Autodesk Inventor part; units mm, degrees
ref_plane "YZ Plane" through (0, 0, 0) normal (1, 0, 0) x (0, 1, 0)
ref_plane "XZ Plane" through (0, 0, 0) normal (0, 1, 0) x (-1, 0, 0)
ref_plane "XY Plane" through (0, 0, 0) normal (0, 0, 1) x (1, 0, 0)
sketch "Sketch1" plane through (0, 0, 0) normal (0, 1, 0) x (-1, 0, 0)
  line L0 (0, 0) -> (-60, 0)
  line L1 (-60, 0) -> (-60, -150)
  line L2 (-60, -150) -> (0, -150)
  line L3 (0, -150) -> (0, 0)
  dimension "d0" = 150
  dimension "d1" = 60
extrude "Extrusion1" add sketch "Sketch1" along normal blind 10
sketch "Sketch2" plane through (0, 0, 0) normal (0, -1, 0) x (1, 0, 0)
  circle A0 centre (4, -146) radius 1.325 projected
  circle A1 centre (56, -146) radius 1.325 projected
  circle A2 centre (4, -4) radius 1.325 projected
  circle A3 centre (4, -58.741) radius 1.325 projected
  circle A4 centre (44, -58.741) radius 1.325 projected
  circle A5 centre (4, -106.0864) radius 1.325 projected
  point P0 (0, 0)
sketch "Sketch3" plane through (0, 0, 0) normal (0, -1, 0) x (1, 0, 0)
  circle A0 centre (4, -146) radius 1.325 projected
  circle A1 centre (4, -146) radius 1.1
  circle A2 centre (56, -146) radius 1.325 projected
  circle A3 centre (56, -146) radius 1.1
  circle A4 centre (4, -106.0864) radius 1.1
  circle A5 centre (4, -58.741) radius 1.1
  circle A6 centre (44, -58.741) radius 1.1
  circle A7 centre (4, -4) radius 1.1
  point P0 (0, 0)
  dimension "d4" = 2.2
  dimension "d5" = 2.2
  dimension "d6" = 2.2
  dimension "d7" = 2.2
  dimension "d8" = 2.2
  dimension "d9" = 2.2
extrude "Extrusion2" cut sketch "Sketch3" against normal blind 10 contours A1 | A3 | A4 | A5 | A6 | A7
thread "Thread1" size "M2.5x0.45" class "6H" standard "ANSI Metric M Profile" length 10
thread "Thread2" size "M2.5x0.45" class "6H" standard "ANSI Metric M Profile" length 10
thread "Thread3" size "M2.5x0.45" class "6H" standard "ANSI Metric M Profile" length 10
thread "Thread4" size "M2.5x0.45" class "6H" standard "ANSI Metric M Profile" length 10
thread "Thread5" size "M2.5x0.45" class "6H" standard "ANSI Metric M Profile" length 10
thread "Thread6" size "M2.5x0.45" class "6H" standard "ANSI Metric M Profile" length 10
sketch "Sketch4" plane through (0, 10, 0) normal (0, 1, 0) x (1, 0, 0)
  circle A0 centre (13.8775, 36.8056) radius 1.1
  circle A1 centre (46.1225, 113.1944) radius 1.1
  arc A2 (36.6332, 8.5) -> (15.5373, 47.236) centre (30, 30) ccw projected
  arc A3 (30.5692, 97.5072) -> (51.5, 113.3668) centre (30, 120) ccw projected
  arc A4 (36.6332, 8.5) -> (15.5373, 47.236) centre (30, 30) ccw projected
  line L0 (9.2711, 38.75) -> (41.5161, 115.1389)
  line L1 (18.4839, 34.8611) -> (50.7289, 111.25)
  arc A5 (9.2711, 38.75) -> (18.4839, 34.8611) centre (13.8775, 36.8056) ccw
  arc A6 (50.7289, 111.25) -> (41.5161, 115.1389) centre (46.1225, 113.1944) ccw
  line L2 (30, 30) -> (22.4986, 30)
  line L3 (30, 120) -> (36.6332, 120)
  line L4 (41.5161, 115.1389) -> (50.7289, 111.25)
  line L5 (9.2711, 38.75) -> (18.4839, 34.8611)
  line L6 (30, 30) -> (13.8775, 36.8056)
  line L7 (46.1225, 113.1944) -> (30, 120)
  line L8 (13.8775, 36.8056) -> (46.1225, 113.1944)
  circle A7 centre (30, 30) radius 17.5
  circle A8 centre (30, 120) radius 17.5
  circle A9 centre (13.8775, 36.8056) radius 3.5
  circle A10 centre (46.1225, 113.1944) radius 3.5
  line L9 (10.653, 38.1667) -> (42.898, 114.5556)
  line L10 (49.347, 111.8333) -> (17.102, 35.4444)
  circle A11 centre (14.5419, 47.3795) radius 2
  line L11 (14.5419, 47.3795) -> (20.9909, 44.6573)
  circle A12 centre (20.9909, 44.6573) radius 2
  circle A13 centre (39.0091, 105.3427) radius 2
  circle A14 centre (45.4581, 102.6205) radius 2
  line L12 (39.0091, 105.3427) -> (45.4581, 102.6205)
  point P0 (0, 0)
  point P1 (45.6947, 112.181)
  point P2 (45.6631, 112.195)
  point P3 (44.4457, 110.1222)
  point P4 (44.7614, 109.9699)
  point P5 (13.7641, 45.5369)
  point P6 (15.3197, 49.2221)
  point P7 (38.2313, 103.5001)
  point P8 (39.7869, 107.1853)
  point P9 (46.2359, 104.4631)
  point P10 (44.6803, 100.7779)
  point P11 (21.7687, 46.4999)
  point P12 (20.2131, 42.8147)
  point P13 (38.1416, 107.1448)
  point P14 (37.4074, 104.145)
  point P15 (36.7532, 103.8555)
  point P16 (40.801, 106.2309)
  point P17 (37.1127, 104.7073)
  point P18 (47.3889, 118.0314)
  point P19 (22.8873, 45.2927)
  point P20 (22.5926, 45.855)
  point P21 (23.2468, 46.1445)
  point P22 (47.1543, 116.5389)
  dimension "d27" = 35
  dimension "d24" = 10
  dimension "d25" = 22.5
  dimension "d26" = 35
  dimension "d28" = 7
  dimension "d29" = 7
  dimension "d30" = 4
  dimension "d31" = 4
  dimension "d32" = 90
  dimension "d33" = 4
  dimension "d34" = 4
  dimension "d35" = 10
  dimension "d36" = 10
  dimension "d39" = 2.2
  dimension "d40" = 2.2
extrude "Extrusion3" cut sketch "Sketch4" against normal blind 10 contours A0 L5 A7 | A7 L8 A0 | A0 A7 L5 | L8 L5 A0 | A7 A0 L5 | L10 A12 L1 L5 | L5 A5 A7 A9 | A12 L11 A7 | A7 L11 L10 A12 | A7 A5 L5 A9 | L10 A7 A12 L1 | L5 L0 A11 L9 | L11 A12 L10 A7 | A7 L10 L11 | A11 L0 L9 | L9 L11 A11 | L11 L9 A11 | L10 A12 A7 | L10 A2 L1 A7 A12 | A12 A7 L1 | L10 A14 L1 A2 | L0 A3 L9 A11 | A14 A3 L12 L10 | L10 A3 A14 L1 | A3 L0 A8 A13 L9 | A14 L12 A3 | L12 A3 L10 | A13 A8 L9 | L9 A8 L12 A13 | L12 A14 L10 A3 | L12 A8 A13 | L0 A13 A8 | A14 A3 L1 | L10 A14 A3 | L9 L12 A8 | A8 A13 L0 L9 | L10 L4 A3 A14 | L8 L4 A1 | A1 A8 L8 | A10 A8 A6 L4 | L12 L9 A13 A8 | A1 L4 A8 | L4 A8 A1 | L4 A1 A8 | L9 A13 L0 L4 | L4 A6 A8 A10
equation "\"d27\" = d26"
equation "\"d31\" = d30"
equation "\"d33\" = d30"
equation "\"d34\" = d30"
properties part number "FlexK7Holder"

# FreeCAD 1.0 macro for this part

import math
import FreeCAD as App
import Part
import Sketcher
from FreeCAD import Vector


def add_polygon(sketch, points):
    """Adds a closed chain of lines whose ends are joined by coincident constraints."""
    first, n = sketch.GeometryCount, len(points)
    for a, b in zip(points, points[1:] + points[:1]):
        sketch.addGeometry(Part.LineSegment(App.Vector(*a, 0), App.Vector(*b, 0)), False)
    for i in range(n):
        sketch.addConstraint(Sketcher.Constraint("Coincident", first + i, 2, first + (i + 1) % n, 1))

doc = App.newDocument("Part")
body = doc.addObject("PartDesign::Body", "Body")
body.AllowCompound = True

# Sketch on XZ plane
sketch1 = body.newObject("Sketcher::SketchObject", "Sketch")
sketch1.AttachmentSupport = (doc.getObject("XZ_Plane"), [""])
sketch1.MapMode = "FlatFace"
add_polygon(sketch1, [(0, -150), (0, 0), (60, 0), (60, -150)])  # lines 0-3
sketch1.addConstraint([
    Sketcher.Constraint("Vertical", 0),
    Sketcher.Constraint("Horizontal", 1),
    Sketcher.Constraint("Vertical", 2),
    Sketcher.Constraint("Horizontal", 3),
    Sketcher.Constraint("Coincident", 0, 2, -1, 1),
    Sketcher.Constraint("DistanceX", 1, 1, 1, 2, 60.0),
    Sketcher.Constraint("DistanceY", 0, 1, 0, 2, 150.0),
])
pad1 = body.newObject("PartDesign::Pad", "Pad")
pad1.Profile = sketch1
pad1.Length = 10
pad1.Reversed = True

# Sketch on XZ plane
sketch2 = body.newObject("Sketcher::SketchObject", "Sketch001")
sketch2.AttachmentSupport = (doc.getObject("XZ_Plane"), [""])
sketch2.MapMode = "FlatFace"
sketch2.addGeometry([
    Part.Circle(Vector(4, -146, 0), Vector(0, 0, 1), 1.1),  # 0
    Part.Circle(Vector(56, -146, 0), Vector(0, 0, 1), 1.1),  # 1
    Part.Circle(Vector(4, -106.0864, 0), Vector(0, 0, 1), 1.1),  # 2
    Part.Circle(Vector(4, -58.741, 0), Vector(0, 0, 1), 1.1),  # 3
    Part.Circle(Vector(44, -58.741, 0), Vector(0, 0, 1), 1.1),  # 4
    Part.Circle(Vector(4, -4, 0), Vector(0, 0, 1), 1.1),  # 5
], False)
sketch2.addConstraint([
    Sketcher.Constraint("Equal", 0, 1),
    Sketcher.Constraint("Equal", 1, 2),
    Sketcher.Constraint("Equal", 2, 3),
    Sketcher.Constraint("Equal", 3, 4),
    Sketcher.Constraint("Equal", 4, 5),
    Sketcher.Constraint("Horizontal", 0, 3, 1, 3),
    Sketcher.Constraint("Horizontal", 3, 3, 4, 3),
    Sketcher.Constraint("Vertical", 0, 3, 2, 3),
    Sketcher.Constraint("Vertical", 2, 3, 3, 3),
    Sketcher.Constraint("Vertical", 3, 3, 5, 3),
    Sketcher.Constraint("Diameter", 0, 2.2),
    Sketcher.Constraint("DistanceX", -1, 1, 0, 3, 4.0),
    Sketcher.Constraint("DistanceY", 0, 3, -1, 1, 146.0),
    Sketcher.Constraint("DistanceX", -1, 1, 1, 3, 56.0),
    Sketcher.Constraint("DistanceX", -1, 1, 4, 3, 44.0),
    Sketcher.Constraint("DistanceY", 5, 3, -1, 1, 4.0),
    Sketcher.Constraint("DistanceY", 3, 3, -1, 1, 58.741),
    Sketcher.Constraint("DistanceY", 2, 3, -1, 1, 106.0864),
])
pocket1 = body.newObject("PartDesign::Pocket", "Pocket")
pocket1.Profile = sketch2
pocket1.Length = 10

# Sketch on XZ plane
sketch3 = body.newObject("Sketcher::SketchObject", "Sketch002")
sketch3.AttachmentSupport = (doc.getObject("XZ_Plane"), [""])
sketch3.MapMode = "FlatFace"
sketch3.AttachmentOffset = App.Placement(Vector(0, 0, -10), App.Rotation())
sketch3.addGeometry([
    Part.Circle(Vector(13.8775, -36.8056, 0), Vector(0, 0, 1), 1.1),  # 0
    Part.LineSegment(Vector(18.4839, -34.8611, 0), Vector(50.7289, -111.25, 0)),  # 1
    Part.ArcOfCircle(Part.Circle(Vector(46.1225, -113.1944, 0), Vector(0, 0, 1), 4.999961), math.radians(-157.113929), math.radians(22.885015)),  # 2
    Part.LineSegment(Vector(41.5161, -115.1389, 0), Vector(9.2711, -38.75, 0)),  # 3
    Part.ArcOfCircle(Part.Circle(Vector(13.8775, -36.8056, 0), Vector(0, 0, 1), 4.999961), math.radians(22.886071), math.radians(202.885015)),  # 4
    Part.LineSegment(Vector(20.213135, -42.814725, 0), Vector(17.102, -35.4444, 0)),  # 5
    Part.ArcOfCircle(Part.Circle(Vector(13.8775, -36.8056, 0), Vector(0, 0, 1), 3.5), math.radians(22.886698), math.radians(202.885189)),  # 6
    Part.LineSegment(Vector(10.653, -38.1667, 0), Vector(13.764099, -45.536941, 0)),  # 7
    Part.ArcOfCircle(Part.Circle(Vector(14.5419, -47.3795, 0), Vector(0, 0, 1), 2), math.radians(-67.11531), math.radians(112.886112)),  # 8
    Part.LineSegment(Vector(15.319656, -49.222079, 0), Vector(38.231309, -103.500136, 0)),  # 9
    Part.ArcOfCircle(Part.Circle(Vector(39.0091, -105.3427, 0), Vector(0, 0, 1), 2), math.radians(-67.115002), math.radians(112.885804)),  # 10
    Part.LineSegment(Vector(39.786865, -107.185275, 0), Vector(42.898, -114.5556, 0)),  # 11
    Part.ArcOfCircle(Part.Circle(Vector(46.1225, -113.1944, 0), Vector(0, 0, 1), 3.5), math.radians(-157.113302), math.radians(22.885189)),  # 12
    Part.LineSegment(Vector(49.347, -111.8333, 0), Vector(46.235901, -104.463059, 0)),  # 13
    Part.ArcOfCircle(Part.Circle(Vector(45.4581, -102.6205, 0), Vector(0, 0, 1), 2), math.radians(112.88469), math.radians(292.886112)),  # 14
    Part.LineSegment(Vector(44.680344, -100.777921, 0), Vector(21.768691, -46.499864, 0)),  # 15
    Part.ArcOfCircle(Part.Circle(Vector(20.9909, -44.6573, 0), Vector(0, 0, 1), 2), math.radians(112.884998), math.radians(292.885804)),  # 16
    Part.Circle(Vector(46.1225, -113.1944, 0), Vector(0, 0, 1), 1.1),  # 17
], False)
sketch3.addConstraint([
    Sketcher.Constraint("Tangent", 1, 2, 2, 2),
    Sketcher.Constraint("Tangent", 2, 1, 3, 1),
    Sketcher.Constraint("Tangent", 3, 2, 4, 2),
    Sketcher.Constraint("Tangent", 4, 1, 1, 1),
    Sketcher.Constraint("Tangent", 5, 2, 6, 1),
    Sketcher.Constraint("Tangent", 6, 2, 7, 1),
    Sketcher.Constraint("Coincident", 7, 2, 8, 2),
    Sketcher.Constraint("Coincident", 8, 1, 9, 1),
    Sketcher.Constraint("Coincident", 9, 2, 10, 2),
    Sketcher.Constraint("Coincident", 10, 1, 11, 1),
    Sketcher.Constraint("Tangent", 11, 2, 12, 1),
    Sketcher.Constraint("Tangent", 12, 2, 13, 1),
    Sketcher.Constraint("Coincident", 13, 2, 14, 2),
    Sketcher.Constraint("Coincident", 14, 1, 15, 1),
    Sketcher.Constraint("Coincident", 15, 2, 16, 2),
    Sketcher.Constraint("Coincident", 16, 1, 5, 1),
    Sketcher.Constraint("Coincident", 4, 3, 0, 3),
    Sketcher.Constraint("Coincident", 6, 3, 0, 3),
    Sketcher.Constraint("Coincident", 12, 3, 2, 3),
    Sketcher.Constraint("Coincident", 17, 3, 2, 3),
    Sketcher.Constraint("Equal", 2, 4),
    Sketcher.Constraint("Equal", 8, 10),
    Sketcher.Constraint("Equal", 6, 12),
    Sketcher.Constraint("Equal", 10, 14),
    Sketcher.Constraint("Equal", 14, 16),
    Sketcher.Constraint("Equal", 0, 17),
    Sketcher.Constraint("Parallel", 3, 5),
    Sketcher.Constraint("Parallel", 5, 7),
    Sketcher.Constraint("Parallel", 7, 9),
    Sketcher.Constraint("Parallel", 9, 11),
    Sketcher.Constraint("Parallel", 11, 13),
    Sketcher.Constraint("Parallel", 13, 15),
    Sketcher.Constraint("Equal", 5, 7),
    Sketcher.Constraint("Equal", 7, 11),
    Sketcher.Constraint("Equal", 11, 13),
    Sketcher.Constraint("Radius", 2, 5.0),
    Sketcher.Constraint("Radius", 8, 2.0),
    Sketcher.Constraint("Diameter", 0, 2.2),
    Sketcher.Constraint("Radius", 6, 3.5),
    Sketcher.Constraint("Distance", 5, 8.0),
    Sketcher.Constraint("DistanceY", 1, 2, -1, 1, 111.25),
    Sketcher.Constraint("DistanceY", 3, 2, -1, 1, 38.75),
    Sketcher.Constraint("DistanceX", -1, 1, 8, 3, 14.542),
    Sketcher.Constraint("DistanceX", -1, 1, 10, 3, 39.009),
    Sketcher.Constraint("DistanceX", -1, 1, 14, 3, 45.458),
    Sketcher.Constraint("DistanceX", -1, 1, 16, 3, 20.991),
    Sketcher.Constraint("DistanceX", -1, 1, 1, 2, 50.729),
    Sketcher.Constraint("DistanceY", 2, 1, -1, 1, 115.139),
    Sketcher.Constraint("DistanceY", 8, 1, -1, 1, 49.222),
    Sketcher.Constraint("DistanceY", 14, 1, -1, 1, 100.778),
])
pocket2 = body.newObject("PartDesign::Pocket", "Pocket001")
pocket2.Profile = sketch3
pocket2.Length = 10
pocket2.Reversed = True

doc.recompute()
